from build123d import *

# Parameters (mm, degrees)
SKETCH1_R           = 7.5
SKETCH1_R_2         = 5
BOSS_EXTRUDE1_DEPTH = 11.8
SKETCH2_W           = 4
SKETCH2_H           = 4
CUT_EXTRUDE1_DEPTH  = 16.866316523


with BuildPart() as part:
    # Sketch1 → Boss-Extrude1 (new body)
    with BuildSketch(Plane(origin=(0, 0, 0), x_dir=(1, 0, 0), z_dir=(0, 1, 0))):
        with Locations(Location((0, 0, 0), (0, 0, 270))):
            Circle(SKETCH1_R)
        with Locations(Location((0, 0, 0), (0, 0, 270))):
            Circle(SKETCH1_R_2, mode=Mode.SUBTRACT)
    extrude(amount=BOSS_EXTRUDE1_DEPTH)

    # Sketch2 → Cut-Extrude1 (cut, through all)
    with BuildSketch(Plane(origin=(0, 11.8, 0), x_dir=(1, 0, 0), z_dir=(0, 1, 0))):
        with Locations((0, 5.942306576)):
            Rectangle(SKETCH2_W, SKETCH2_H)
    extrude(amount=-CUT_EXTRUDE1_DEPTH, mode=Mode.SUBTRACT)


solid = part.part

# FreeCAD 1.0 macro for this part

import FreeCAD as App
import Part
import Sketcher

V = App.Vector


def add_polygon(sketch, points):
    """Adds a closed chain of lines whose ends are joined by coincident constraints."""
    first, n = sketch.GeometryCount, len(points)
    for a, b in zip(points, points[1:] + points[:1]):
        sketch.addGeometry(Part.LineSegment(App.Vector(*a, 0), App.Vector(*b, 0)), False)
    for i in range(n):
        sketch.addConstraint(Sketcher.Constraint("Coincident", first + i, 2, first + (i + 1) % n, 1))

doc = App.newDocument("Part")
body = doc.addObject("PartDesign::Body", "Body")

# Sketch on XZ plane
sketch1 = doc.addObject("Sketcher::SketchObject", "Sketch")
body.addObject(sketch1)
sketch1.AttachmentSupport = (doc.XZ_Plane, [""])
sketch1.MapMode = "FlatFace"
sketch1.addGeometry([
    Part.Circle(V(0, 0, 0), V(0, 0, 1), 7.5),
    Part.Circle(V(0, 0, 0), V(0, 0, 1), 5),
], False)
sketch1.addConstraint([
    Sketcher.Constraint("Coincident", 0, 3, -1, 1),
    Sketcher.Constraint("Coincident", 1, 3, -1, 1),
    Sketcher.Constraint("Diameter", 0, 15.0),
    Sketcher.Constraint("Diameter", 1, 10.0),
])
pad1 = doc.addObject("PartDesign::Pad", "Pad")
body.addObject(pad1)
pad1.Profile = sketch1
pad1.Length = 11.8
pad1.Reversed = True

# Sketch on XZ plane
sketch2 = doc.addObject("Sketcher::SketchObject", "Sketch001")
body.addObject(sketch2)
sketch2.AttachmentSupport = (doc.XZ_Plane, [""])
sketch2.MapMode = "FlatFace"
sketch2.AttachmentOffset = App.Placement(V(0, 0, -11.8), App.Rotation())
add_polygon(sketch2, [(-2, -7.942307), (-2, -3.942307), (2, -3.942307), (2, -7.942307)])  # lines 0-3
sketch2.addConstraint([
    Sketcher.Constraint("Vertical", 0),
    Sketcher.Constraint("Horizontal", 1),
    Sketcher.Constraint("Vertical", 2),
    Sketcher.Constraint("Horizontal", 3),
    Sketcher.Constraint("Equal", 3, 0),
    Sketcher.Constraint("DistanceX", 1, 1, 1, 2, 4.0),
    Sketcher.Constraint("DistanceX", 0, 2, -1, 1, 2.0),
    Sketcher.Constraint("DistanceY", 0, 2, -1, 1, 3.942307),
])
pocket1 = doc.addObject("PartDesign::Pocket", "Pocket")
body.addObject(pocket1)
pocket1.Profile = sketch2
pocket1.Type = "ThroughAll"
pocket1.Reversed = True

doc.recompute()
